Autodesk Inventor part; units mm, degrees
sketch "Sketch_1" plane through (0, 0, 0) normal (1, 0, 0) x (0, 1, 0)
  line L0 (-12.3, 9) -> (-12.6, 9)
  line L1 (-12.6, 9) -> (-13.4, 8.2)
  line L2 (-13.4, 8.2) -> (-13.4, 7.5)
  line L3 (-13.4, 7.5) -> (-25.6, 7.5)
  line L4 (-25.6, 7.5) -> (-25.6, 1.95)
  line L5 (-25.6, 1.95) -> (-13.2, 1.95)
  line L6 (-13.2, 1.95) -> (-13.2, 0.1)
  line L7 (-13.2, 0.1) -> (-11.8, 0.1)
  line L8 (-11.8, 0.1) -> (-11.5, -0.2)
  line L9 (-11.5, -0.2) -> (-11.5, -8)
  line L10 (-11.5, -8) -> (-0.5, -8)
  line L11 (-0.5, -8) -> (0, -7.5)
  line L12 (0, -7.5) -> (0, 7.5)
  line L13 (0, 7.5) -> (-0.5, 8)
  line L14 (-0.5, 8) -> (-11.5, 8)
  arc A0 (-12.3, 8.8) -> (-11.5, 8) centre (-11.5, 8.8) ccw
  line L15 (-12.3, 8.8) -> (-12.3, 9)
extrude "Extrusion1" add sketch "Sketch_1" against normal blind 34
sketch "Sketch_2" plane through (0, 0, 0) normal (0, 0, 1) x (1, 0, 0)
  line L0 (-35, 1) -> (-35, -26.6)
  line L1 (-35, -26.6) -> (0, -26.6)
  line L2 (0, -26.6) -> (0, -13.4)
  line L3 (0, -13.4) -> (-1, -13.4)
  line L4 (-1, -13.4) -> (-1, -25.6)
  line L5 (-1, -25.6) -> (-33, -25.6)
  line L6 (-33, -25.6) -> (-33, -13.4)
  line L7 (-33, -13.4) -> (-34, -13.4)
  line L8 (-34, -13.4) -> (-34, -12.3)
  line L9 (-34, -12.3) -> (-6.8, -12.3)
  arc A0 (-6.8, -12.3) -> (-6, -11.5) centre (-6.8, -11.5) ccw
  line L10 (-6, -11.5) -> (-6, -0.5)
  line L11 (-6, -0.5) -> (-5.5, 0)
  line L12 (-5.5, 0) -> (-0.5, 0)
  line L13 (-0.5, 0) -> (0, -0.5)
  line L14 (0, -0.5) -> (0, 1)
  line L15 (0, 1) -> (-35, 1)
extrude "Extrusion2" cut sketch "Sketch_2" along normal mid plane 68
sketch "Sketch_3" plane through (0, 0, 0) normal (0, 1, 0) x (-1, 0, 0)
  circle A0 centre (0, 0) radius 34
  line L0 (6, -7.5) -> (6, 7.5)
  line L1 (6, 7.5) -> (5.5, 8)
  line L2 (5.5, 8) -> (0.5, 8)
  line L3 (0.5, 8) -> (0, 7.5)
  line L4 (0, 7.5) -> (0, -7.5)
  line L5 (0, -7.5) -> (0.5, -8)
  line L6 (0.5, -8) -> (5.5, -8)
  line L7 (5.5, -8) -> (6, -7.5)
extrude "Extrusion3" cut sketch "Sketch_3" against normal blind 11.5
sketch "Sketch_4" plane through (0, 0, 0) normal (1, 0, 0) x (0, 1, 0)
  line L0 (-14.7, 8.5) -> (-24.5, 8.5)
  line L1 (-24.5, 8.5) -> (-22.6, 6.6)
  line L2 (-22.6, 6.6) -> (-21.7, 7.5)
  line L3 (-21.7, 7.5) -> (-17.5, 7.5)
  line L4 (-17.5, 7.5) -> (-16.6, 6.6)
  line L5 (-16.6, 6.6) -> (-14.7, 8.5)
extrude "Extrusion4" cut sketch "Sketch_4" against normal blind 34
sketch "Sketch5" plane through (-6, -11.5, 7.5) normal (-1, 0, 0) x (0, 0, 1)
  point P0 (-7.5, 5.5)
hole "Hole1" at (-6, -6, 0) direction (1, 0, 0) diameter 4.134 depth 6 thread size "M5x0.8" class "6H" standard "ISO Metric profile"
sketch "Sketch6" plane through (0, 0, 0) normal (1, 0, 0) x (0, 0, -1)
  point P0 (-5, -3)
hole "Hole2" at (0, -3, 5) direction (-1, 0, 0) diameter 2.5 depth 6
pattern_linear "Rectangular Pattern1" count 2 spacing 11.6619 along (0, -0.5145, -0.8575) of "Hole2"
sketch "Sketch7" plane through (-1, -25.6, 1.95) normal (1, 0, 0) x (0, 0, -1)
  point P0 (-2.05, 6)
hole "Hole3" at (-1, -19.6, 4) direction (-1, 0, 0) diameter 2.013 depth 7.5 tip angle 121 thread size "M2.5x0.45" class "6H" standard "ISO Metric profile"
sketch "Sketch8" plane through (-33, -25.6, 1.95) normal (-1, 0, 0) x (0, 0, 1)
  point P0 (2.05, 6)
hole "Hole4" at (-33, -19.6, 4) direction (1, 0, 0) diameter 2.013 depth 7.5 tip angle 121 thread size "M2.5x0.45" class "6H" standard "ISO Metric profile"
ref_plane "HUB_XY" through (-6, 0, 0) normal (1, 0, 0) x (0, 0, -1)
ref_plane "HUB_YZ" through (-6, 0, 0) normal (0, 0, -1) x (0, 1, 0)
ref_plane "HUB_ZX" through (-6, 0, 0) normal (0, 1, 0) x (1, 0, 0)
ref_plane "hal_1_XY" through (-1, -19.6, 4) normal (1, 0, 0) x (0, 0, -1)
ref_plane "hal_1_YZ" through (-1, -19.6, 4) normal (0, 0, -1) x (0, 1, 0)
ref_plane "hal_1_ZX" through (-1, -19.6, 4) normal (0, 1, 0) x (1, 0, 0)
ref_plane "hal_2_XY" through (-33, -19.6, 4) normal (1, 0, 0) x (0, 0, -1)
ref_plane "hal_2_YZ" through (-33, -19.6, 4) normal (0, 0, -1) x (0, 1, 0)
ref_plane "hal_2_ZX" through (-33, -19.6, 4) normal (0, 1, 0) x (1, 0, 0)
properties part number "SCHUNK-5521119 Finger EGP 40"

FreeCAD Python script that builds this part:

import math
import FreeCAD as App
import Part
import Sketcher
from FreeCAD import Vector

doc = App.newDocument("Part")
body = doc.addObject("PartDesign::Body", "Body")

# Sketch on YZ plane
sketch1 = body.newObject("Sketcher::SketchObject", "Sketch")
sketch1.AttachmentSupport = (doc.getObject("YZ_Plane"), [""])
sketch1.MapMode = "FlatFace"
sketch1.addGeometry(Part.LineSegment(Vector(-12.3, 8.8, 0), Vector(-12.3, 9, 0)), False)
sketch1.addGeometry(Part.LineSegment(Vector(-12.3, 9, 0), Vector(-12.6, 9, 0)), False)
sketch1.addGeometry(Part.LineSegment(Vector(-12.6, 9, 0), Vector(-13.4, 8.2, 0)), False)
sketch1.addGeometry(Part.LineSegment(Vector(-13.4, 8.2, 0), Vector(-13.4, 7.5, 0)), False)
sketch1.addGeometry(Part.LineSegment(Vector(-13.4, 7.5, 0), Vector(-25.6, 7.5, 0)), False)
sketch1.addGeometry(Part.LineSegment(Vector(-25.6, 7.5, 0), Vector(-25.6, 1.95, 0)), False)
sketch1.addGeometry(Part.LineSegment(Vector(-25.6, 1.95, 0), Vector(-13.2, 1.95, 0)), False)
sketch1.addGeometry(Part.LineSegment(Vector(-13.2, 1.95, 0), Vector(-13.2, 0.1, 0)), False)
sketch1.addGeometry(Part.LineSegment(Vector(-13.2, 0.1, 0), Vector(-11.8, 0.1, 0)), False)
sketch1.addGeometry(Part.LineSegment(Vector(-11.8, 0.1, 0), Vector(-11.5, -0.2, 0)), False)
sketch1.addGeometry(Part.LineSegment(Vector(-11.5, -0.2, 0), Vector(-11.5, -8, 0)), False)
sketch1.addGeometry(Part.LineSegment(Vector(-11.5, -8, 0), Vector(-0.5, -8, 0)), False)
sketch1.addGeometry(Part.LineSegment(Vector(-0.5, -8, 0), Vector(0, -7.5, 0)), False)
sketch1.addGeometry(Part.LineSegment(Vector(0, -7.5, 0), Vector(0, 7.5, 0)), False)
sketch1.addGeometry(Part.LineSegment(Vector(0, 7.5, 0), Vector(-0.5, 8, 0)), False)
sketch1.addGeometry(Part.LineSegment(Vector(-0.5, 8, 0), Vector(-11.5, 8, 0)), False)
sketch1.addGeometry(Part.ArcOfCircle(Part.Circle(Vector(-11.5, 8.8, 0), Vector(0, 0, 1), 0.8), math.radians(180), math.radians(270)), False)
sketch1.addConstraint(Sketcher.Constraint("Coincident", 0, 2, 1, 1))
sketch1.addConstraint(Sketcher.Constraint("Coincident", 1, 2, 2, 1))
sketch1.addConstraint(Sketcher.Constraint("Coincident", 2, 2, 3, 1))
sketch1.addConstraint(Sketcher.Constraint("Coincident", 3, 2, 4, 1))
sketch1.addConstraint(Sketcher.Constraint("Coincident", 4, 2, 5, 1))
sketch1.addConstraint(Sketcher.Constraint("Coincident", 5, 2, 6, 1))
sketch1.addConstraint(Sketcher.Constraint("Coincident", 6, 2, 7, 1))
sketch1.addConstraint(Sketcher.Constraint("Coincident", 7, 2, 8, 1))
sketch1.addConstraint(Sketcher.Constraint("Coincident", 8, 2, 9, 1))
sketch1.addConstraint(Sketcher.Constraint("Coincident", 9, 2, 10, 1))
sketch1.addConstraint(Sketcher.Constraint("Coincident", 10, 2, 11, 1))
sketch1.addConstraint(Sketcher.Constraint("Coincident", 11, 2, 12, 1))
sketch1.addConstraint(Sketcher.Constraint("Coincident", 12, 2, 13, 1))
sketch1.addConstraint(Sketcher.Constraint("Coincident", 13, 2, 14, 1))
sketch1.addConstraint(Sketcher.Constraint("Coincident", 14, 2, 15, 1))
sketch1.addConstraint(Sketcher.Constraint("Tangent", 15, 2, 16, 2))
sketch1.addConstraint(Sketcher.Constraint("Tangent", 16, 1, 0, 1))
sketch1.addConstraint(Sketcher.Constraint("Vertical", 0))
sketch1.addConstraint(Sketcher.Constraint("Horizontal", 1))
sketch1.addConstraint(Sketcher.Constraint("Vertical", 3))
sketch1.addConstraint(Sketcher.Constraint("Horizontal", 4))
sketch1.addConstraint(Sketcher.Constraint("Vertical", 5))
sketch1.addConstraint(Sketcher.Constraint("Horizontal", 6))
sketch1.addConstraint(Sketcher.Constraint("Vertical", 7))
sketch1.addConstraint(Sketcher.Constraint("Horizontal", 8))
sketch1.addConstraint(Sketcher.Constraint("Vertical", 10))
sketch1.addConstraint(Sketcher.Constraint("Horizontal", 11))
sketch1.addConstraint(Sketcher.Constraint("Vertical", 13))
sketch1.addConstraint(Sketcher.Constraint("Horizontal", 15))
sketch1.addConstraint(Sketcher.Constraint("Symmetric", 12, 2, 13, 2, -1, 1))
sketch1.addConstraint(Sketcher.Constraint("Symmetric", 11, 2, 14, 2, -1))
sketch1.addConstraint(Sketcher.Constraint("Perpendicular", 2, 9))
sketch1.addConstraint(Sketcher.Constraint("Perpendicular", 9, 12))
sketch1.addConstraint(Sketcher.Constraint("Perpendicular", 12, 14))
sketch1.addConstraint(Sketcher.Constraint("Horizontal", 4, 2, 13, 2))
sketch1.addConstraint(Sketcher.Constraint("Vertical", 16, 3, 9, 2))
sketch1.addConstraint(Sketcher.Constraint("Radius", 16, 0.8))
sketch1.addConstraint(Sketcher.Constraint("DistanceX", 11, 1, 11, 2, 11.0))
sketch1.addConstraint(Sketcher.Constraint("DistanceY", 13, 1, 13, 2, 15.0))
sketch1.addConstraint(Sketcher.Constraint("DistanceX", 1, 2, 1, 1, 0.3))
sketch1.addConstraint(Sketcher.Constraint("DistanceX", 4, 2, 4, 1, 12.2))
sketch1.addConstraint(Sketcher.Constraint("DistanceX", 6, 1, 6, 2, 12.4))
sketch1.addConstraint(Sketcher.Constraint("DistanceX", 8, 1, 8, 2, 1.4))
sketch1.addConstraint(Sketcher.Constraint("DistanceY", 0, 1, 0, 2, 0.2))
sketch1.addConstraint(Sketcher.Constraint("DistanceY", 3, 2, 3, 1, 0.7))
sketch1.addConstraint(Sketcher.Constraint("DistanceY", 10, 2, 10, 1, 7.8))
sketch1.addConstraint(Sketcher.Constraint("DistanceY", -1, 1, 0, 2, 9.0))
sketch1.addConstraint(Sketcher.Constraint("DistanceY", 5, 2, 5, 1, 5.55))
pad1 = body.newObject("PartDesign::Pad", "Pad")
pad1.Profile = sketch1
pad1.Length = 34
pad1.Reversed = True

# Sketch on XY plane
sketch2 = body.newObject("Sketcher::SketchObject", "Sketch001")
sketch2.AttachmentSupport = (doc.getObject("XY_Plane"), [""])
sketch2.MapMode = "FlatFace"
sketch2.addGeometry(Part.LineSegment(Vector(0, 1, 0), Vector(-35, 1, 0)), False)
sketch2.addGeometry(Part.LineSegment(Vector(-35, 1, 0), Vector(-35, -26.6, 0)), False)
sketch2.addGeometry(Part.LineSegment(Vector(-35, -26.6, 0), Vector(0, -26.6, 0)), False)
sketch2.addGeometry(Part.LineSegment(Vector(0, -26.6, 0), Vector(0, -13.4, 0)), False)
sketch2.addGeometry(Part.LineSegment(Vector(0, -13.4, 0), Vector(-1, -13.4, 0)), False)
sketch2.addGeometry(Part.LineSegment(Vector(-1, -13.4, 0), Vector(-1, -25.6, 0)), False)
sketch2.addGeometry(Part.LineSegment(Vector(-1, -25.6, 0), Vector(-33, -25.6, 0)), False)
sketch2.addGeometry(Part.LineSegment(Vector(-33, -25.6, 0), Vector(-33, -13.4, 0)), False)
sketch2.addGeometry(Part.LineSegment(Vector(-33, -13.4, 0), Vector(-34, -13.4, 0)), False)
sketch2.addGeometry(Part.LineSegment(Vector(-34, -13.4, 0), Vector(-34, -12.3, 0)), False)
sketch2.addGeometry(Part.LineSegment(Vector(-34, -12.3, 0), Vector(-6.8, -12.3, 0)), False)
sketch2.addGeometry(Part.ArcOfCircle(Part.Circle(Vector(-6.8, -11.5, 0), Vector(0, 0, 1), 0.8), math.radians(-90), math.radians(0)), False)
sketch2.addGeometry(Part.LineSegment(Vector(-6, -11.5, 0), Vector(-6, -0.5, 0)), False)
sketch2.addGeometry(Part.LineSegment(Vector(-6, -0.5, 0), Vector(-5.5, 0, 0)), False)
sketch2.addGeometry(Part.LineSegment(Vector(-5.5, 0, 0), Vector(-0.5, 0, 0)), False)
sketch2.addGeometry(Part.LineSegment(Vector(-0.5, 0, 0), Vector(0, -0.5, 0)), False)
sketch2.addGeometry(Part.LineSegment(Vector(0, -0.5, 0), Vector(0, 1, 0)), False)
sketch2.addConstraint(Sketcher.Constraint("Coincident", 0, 2, 1, 1))
sketch2.addConstraint(Sketcher.Constraint("Coincident", 1, 2, 2, 1))
sketch2.addConstraint(Sketcher.Constraint("Coincident", 2, 2, 3, 1))
sketch2.addConstraint(Sketcher.Constraint("Coincident", 3, 2, 4, 1))
sketch2.addConstraint(Sketcher.Constraint("Coincident", 4, 2, 5, 1))
sketch2.addConstraint(Sketcher.Constraint("Coincident", 5, 2, 6, 1))
sketch2.addConstraint(Sketcher.Constraint("Coincident", 6, 2, 7, 1))
sketch2.addConstraint(Sketcher.Constraint("Coincident", 7, 2, 8, 1))
sketch2.addConstraint(Sketcher.Constraint("Coincident", 8, 2, 9, 1))
sketch2.addConstraint(Sketcher.Constraint("Coincident", 9, 2, 10, 1))
sketch2.addConstraint(Sketcher.Constraint("Tangent", 10, 2, 11, 1))
sketch2.addConstraint(Sketcher.Constraint("Tangent", 11, 2, 12, 1))
sketch2.addConstraint(Sketcher.Constraint("Coincident", 12, 2, 13, 1))
sketch2.addConstraint(Sketcher.Constraint("Coincident", 13, 2, 14, 1))
sketch2.addConstraint(Sketcher.Constraint("Coincident", 14, 2, 15, 1))
sketch2.addConstraint(Sketcher.Constraint("Coincident", 15, 2, 16, 1))
sketch2.addConstraint(Sketcher.Constraint("Coincident", 16, 2, 0, 1))
sketch2.addConstraint(Sketcher.Constraint("Horizontal", 0))
sketch2.addConstraint(Sketcher.Constraint("Vertical", 1))
sketch2.addConstraint(Sketcher.Constraint("Horizontal", 2))
sketch2.addConstraint(Sketcher.Constraint("Vertical", 3))
sketch2.addConstraint(Sketcher.Constraint("Horizontal", 4))
sketch2.addConstraint(Sketcher.Constraint("Vertical", 5))
sketch2.addConstraint(Sketcher.Constraint("Horizontal", 6))
sketch2.addConstraint(Sketcher.Constraint("Vertical", 7))
sketch2.addConstraint(Sketcher.Constraint("Horizontal", 8))
sketch2.addConstraint(Sketcher.Constraint("Vertical", 9))
sketch2.addConstraint(Sketcher.Constraint("Horizontal", 10))
sketch2.addConstraint(Sketcher.Constraint("Vertical", 12))
sketch2.addConstraint(Sketcher.Constraint("Horizontal", 14))
sketch2.addConstraint(Sketcher.Constraint("Vertical", 16))
sketch2.addConstraint(Sketcher.Constraint("PointOnObject", 2, 2, -2))
sketch2.addConstraint(Sketcher.Constraint("PointOnObject", 13, 2, -1))
sketch2.addConstraint(Sketcher.Constraint("PointOnObject", 15, 2, -2))
sketch2.addConstraint(Sketcher.Constraint("Perpendicular", 13, 15))
sketch2.addConstraint(Sketcher.Constraint("Horizontal", 4, 2, 7, 2))
sketch2.addConstraint(Sketcher.Constraint("Horizontal", 12, 2, 15, 2))
sketch2.addConstraint(Sketcher.Constraint("Equal", 4, 8))
sketch2.addConstraint(Sketcher.Constraint("Equal", 13, 15))
sketch2.addConstraint(Sketcher.Constraint("Radius", 11, 0.8))
sketch2.addConstraint(Sketcher.Constraint("DistanceX", 0, 2, 0, 1, 35.0))
sketch2.addConstraint(Sketcher.Constraint("DistanceX", 4, 2, 4, 1, 1.0))
sketch2.addConstraint(Sketcher.Constraint("DistanceX", 6, 2, 6, 1, 32.0))
sketch2.addConstraint(Sketcher.Constraint("DistanceX", 14, 1, 14, 2, 5.0))
sketch2.addConstraint(Sketcher.Constraint("DistanceY", 12, 1, 12, 2, 11.0))
sketch2.addConstraint(Sketcher.Constraint("DistanceX", 10, 1, 10, 2, 27.2))
sketch2.addConstraint(Sketcher.Constraint("DistanceY", 1, 2, 1, 1, 27.6))
sketch2.addConstraint(Sketcher.Constraint("DistanceY", 3, 1, 3, 2, 13.2))
sketch2.addConstraint(Sketcher.Constraint("DistanceY", 5, 2, 5, 1, 12.2))
sketch2.addConstraint(Sketcher.Constraint("DistanceY", 9, 1, 9, 2, 1.1))
pocket1 = body.newObject("PartDesign::Pocket", "Pocket")
pocket1.Profile = sketch2
pocket1.Length = 68
pocket1.Midplane = True

# Sketch on XZ plane
sketch3 = body.newObject("Sketcher::SketchObject", "Sketch002")
sketch3.AttachmentSupport = (doc.getObject("XZ_Plane"), [""])
sketch3.MapMode = "FlatFace"
sketch3.addGeometry(Part.Circle(Vector(0, 0, 0), Vector(0, 0, 1), 34), False)
sketch3.addGeometry(Part.LineSegment(Vector(-6, 7.5, 0), Vector(-6, -7.5, 0)), False)
sketch3.addGeometry(Part.LineSegment(Vector(-6, -7.5, 0), Vector(-5.5, -8, 0)), False)
sketch3.addGeometry(Part.LineSegment(Vector(-5.5, -8, 0), Vector(-0.5, -8, 0)), False)
sketch3.addGeometry(Part.LineSegment(Vector(-0.5, -8, 0), Vector(0, -7.5, 0)), False)
sketch3.addGeometry(Part.LineSegment(Vector(0, -7.5, 0), Vector(0, 7.5, 0)), False)
sketch3.addGeometry(Part.LineSegment(Vector(0, 7.5, 0), Vector(-0.5, 8, 0)), False)
sketch3.addGeometry(Part.LineSegment(Vector(-0.5, 8, 0), Vector(-5.5, 8, 0)), False)
sketch3.addGeometry(Part.LineSegment(Vector(-5.5, 8, 0), Vector(-6, 7.5, 0)), False)
sketch3.addConstraint(Sketcher.Constraint("Coincident", 1, 2, 2, 1))
sketch3.addConstraint(Sketcher.Constraint("Coincident", 2, 2, 3, 1))
sketch3.addConstraint(Sketcher.Constraint("Coincident", 3, 2, 4, 1))
sketch3.addConstraint(Sketcher.Constraint("Coincident", 4, 2, 5, 1))
sketch3.addConstraint(Sketcher.Constraint("Coincident", 5, 2, 6, 1))
sketch3.addConstraint(Sketcher.Constraint("Coincident", 6, 2, 7, 1))
sketch3.addConstraint(Sketcher.Constraint("Coincident", 7, 2, 8, 1))
sketch3.addConstraint(Sketcher.Constraint("Coincident", 8, 2, 1, 1))
sketch3.addConstraint(Sketcher.Constraint("Vertical", 1))
sketch3.addConstraint(Sketcher.Constraint("Horizontal", 3))
sketch3.addConstraint(Sketcher.Constraint("Vertical", 5))
sketch3.addConstraint(Sketcher.Constraint("Horizontal", 7))
sketch3.addConstraint(Sketcher.Constraint("Coincident", 0, 3, -1, 1))
sketch3.addConstraint(Sketcher.Constraint("Symmetric", 4, 2, 5, 2, -1, 1))
sketch3.addConstraint(Sketcher.Constraint("Symmetric", 3, 2, 6, 2, -1))
sketch3.addConstraint(Sketcher.Constraint("Perpendicular", 2, 4))
sketch3.addConstraint(Sketcher.Constraint("Perpendicular", 4, 6))
sketch3.addConstraint(Sketcher.Constraint("Perpendicular", 6, 8))
sketch3.addConstraint(Sketcher.Constraint("Horizontal", 1, 2, 4, 2))
sketch3.addConstraint(Sketcher.Constraint("Horizontal", 5, 2, 8, 2))
sketch3.addConstraint(Sketcher.Constraint("Diameter", 0, 68.0))
sketch3.addConstraint(Sketcher.Constraint("DistanceX", 3, 1, 3, 2, 5.0))
sketch3.addConstraint(Sketcher.Constraint("DistanceY", 1, 2, 1, 1, 15.0))
sketch3.addConstraint(Sketcher.Constraint("DistanceX", 1, 2, -1, 1, 6.0))
pocket2 = body.newObject("PartDesign::Pocket", "Pocket001")
pocket2.Profile = sketch3
pocket2.Length = 11.5
pocket2.Reversed = True

# Sketch on YZ plane
sketch4 = body.newObject("Sketcher::SketchObject", "Sketch003")
sketch4.AttachmentSupport = (doc.getObject("YZ_Plane"), [""])
sketch4.MapMode = "FlatFace"
sketch4.addGeometry(Part.LineSegment(Vector(-16.6, 6.6, 0), Vector(-14.7, 8.5, 0)), False)
sketch4.addGeometry(Part.LineSegment(Vector(-14.7, 8.5, 0), Vector(-24.5, 8.5, 0)), False)
sketch4.addGeometry(Part.LineSegment(Vector(-24.5, 8.5, 0), Vector(-22.6, 6.6, 0)), False)
sketch4.addGeometry(Part.LineSegment(Vector(-22.6, 6.6, 0), Vector(-21.7, 7.5, 0)), False)
sketch4.addGeometry(Part.LineSegment(Vector(-21.7, 7.5, 0), Vector(-17.5, 7.5, 0)), False)
sketch4.addGeometry(Part.LineSegment(Vector(-17.5, 7.5, 0), Vector(-16.6, 6.6, 0)), False)
sketch4.addConstraint(Sketcher.Constraint("Coincident", 0, 2, 1, 1))
sketch4.addConstraint(Sketcher.Constraint("Coincident", 1, 2, 2, 1))
sketch4.addConstraint(Sketcher.Constraint("Coincident", 2, 2, 3, 1))
sketch4.addConstraint(Sketcher.Constraint("Coincident", 3, 2, 4, 1))
sketch4.addConstraint(Sketcher.Constraint("Coincident", 4, 2, 5, 1))
sketch4.addConstraint(Sketcher.Constraint("Coincident", 5, 2, 0, 1))
sketch4.addConstraint(Sketcher.Constraint("Horizontal", 1))
sketch4.addConstraint(Sketcher.Constraint("Horizontal", 4))
sketch4.addConstraint(Sketcher.Constraint("Perpendicular", 0, 2))
sketch4.addConstraint(Sketcher.Constraint("Perpendicular", 2, 3))
sketch4.addConstraint(Sketcher.Constraint("Perpendicular", 3, 5))
sketch4.addConstraint(Sketcher.Constraint("Horizontal", 2, 2, 5, 2))
sketch4.addConstraint(Sketcher.Constraint("Equal", 0, 2))
sketch4.addConstraint(Sketcher.Constraint("DistanceX", 1, 2, 1, 1, 9.8))
sketch4.addConstraint(Sketcher.Constraint("DistanceX", 4, 1, 4, 2, 4.2))
sketch4.addConstraint(Sketcher.Constraint("DistanceY", 3, 2, 1, 2, 1.0))
sketch4.addConstraint(Sketcher.Constraint("DistanceX", 0, 2, -1, 1, 14.7))
sketch4.addConstraint(Sketcher.Constraint("DistanceY", -1, 1, 0, 2, 8.5))
pocket3 = body.newObject("PartDesign::Pocket", "Pocket002")
pocket3.Profile = sketch4
pocket3.Length = 34

# Sketch on YZ plane
sketch5 = body.newObject("Sketcher::SketchObject", "Sketch004")
sketch5.AttachmentSupport = (doc.getObject("YZ_Plane"), [""])
sketch5.MapMode = "FlatFace"
sketch5.AttachmentOffset = App.Placement(Vector(0, 0, -6), App.Rotation())
sketch5.addGeometry(Part.Circle(Vector(-6, 0, 0), Vector(0, 0, 1), 2.067), False)
sketch5.addConstraint(Sketcher.Constraint("PointOnObject", 0, 3, -1))
sketch5.addConstraint(Sketcher.Constraint("Diameter", 0, 4.134))
sketch5.addConstraint(Sketcher.Constraint("DistanceX", 0, 3, -1, 1, 6.0))
doc.recompute()
hole = body.newObject("PartDesign::Hole", "Hole")
hole.Profile = sketch5
hole.ThreadType = "None"
hole.Diameter = 4.134
hole.DepthType = "Dimension"
hole.Depth = 6
hole.DrillPoint = "Flat"
hole.Reversed = True

# Sketch on YZ plane
sketch6 = body.newObject("Sketcher::SketchObject", "Sketch005")
sketch6.AttachmentSupport = (doc.getObject("YZ_Plane"), [""])
sketch6.MapMode = "FlatFace"
sketch6.addGeometry(Part.Circle(Vector(-3, 5, 0), Vector(0, 0, 1), 1.25), False)
sketch6.addConstraint(Sketcher.Constraint("Diameter", 0, 2.5))
sketch6.addConstraint(Sketcher.Constraint("DistanceX", 0, 3, -1, 1, 3.0))
sketch6.addConstraint(Sketcher.Constraint("DistanceY", -1, 1, 0, 3, 5.0))
doc.recompute()
hole2 = body.newObject("PartDesign::Hole", "Hole001")
hole2.Profile = sketch6
hole2.ThreadType = "None"
hole2.Diameter = 2.5
hole2.DepthType = "Dimension"
hole2.Depth = 6
hole2.DrillPoint = "Flat"
doc.recompute()

datumline = body.newObject("PartDesign::Line", "DatumLine")
datumline.Placement = App.Placement(Vector(0, 0, 0), App.Rotation(Vector(0, 0, 1), Vector(0, -0.514495755, -0.857492926)))
linearpattern = body.newObject("PartDesign::LinearPattern", "LinearPattern")
linearpattern.Originals = [hole2]
linearpattern.Direction = (datumline, [""])
linearpattern.Mode = "offset"
linearpattern.Offset = 11.6619
linearpattern.Occurrences = 2
body.Tip = linearpattern

# Sketch on YZ plane
sketch7 = body.newObject("Sketcher::SketchObject", "Sketch006")
sketch7.AttachmentSupport = (doc.getObject("YZ_Plane"), [""])
sketch7.MapMode = "FlatFace"
sketch7.AttachmentOffset = App.Placement(Vector(0, 0, -1), App.Rotation())
sketch7.addGeometry(Part.Circle(Vector(-19.6, 4, 0), Vector(0, 0, 1), 1.0065), False)
sketch7.addConstraint(Sketcher.Constraint("Diameter", 0, 2.013))
sketch7.addConstraint(Sketcher.Constraint("DistanceY", -1, 1, 0, 3, 4.0))
sketch7.addConstraint(Sketcher.Constraint("DistanceX", 0, 3, -1, 1, 19.6))
doc.recompute()
hole3 = body.newObject("PartDesign::Hole", "Hole002")
hole3.Profile = sketch7
hole3.ThreadType = "None"
hole3.Diameter = 2.013
hole3.DepthType = "Dimension"
hole3.Depth = 7.5
hole3.DrillPoint = "Angled"
hole3.DrillPointAngle = 121

# Sketch on YZ plane
sketch8 = body.newObject("Sketcher::SketchObject", "Sketch007")
sketch8.AttachmentSupport = (doc.getObject("YZ_Plane"), [""])
sketch8.MapMode = "FlatFace"
sketch8.AttachmentOffset = App.Placement(Vector(0, 0, -33), App.Rotation())
sketch8.addGeometry(Part.Circle(Vector(-19.6, 4, 0), Vector(0, 0, 1), 1.0065), False)
sketch8.addConstraint(Sketcher.Constraint("Diameter", 0, 2.013))
sketch8.addConstraint(Sketcher.Constraint("DistanceY", -1, 1, 0, 3, 4.0))
sketch8.addConstraint(Sketcher.Constraint("DistanceX", 0, 3, -1, 1, 19.6))
doc.recompute()
hole4 = body.newObject("PartDesign::Hole", "Hole003")
hole4.Profile = sketch8
hole4.ThreadType = "None"
hole4.Diameter = 2.013
hole4.DepthType = "Dimension"
hole4.Depth = 7.5
hole4.DrillPoint = "Angled"
hole4.DrillPointAngle = 121
hole4.Reversed = True

doc.recompute()
